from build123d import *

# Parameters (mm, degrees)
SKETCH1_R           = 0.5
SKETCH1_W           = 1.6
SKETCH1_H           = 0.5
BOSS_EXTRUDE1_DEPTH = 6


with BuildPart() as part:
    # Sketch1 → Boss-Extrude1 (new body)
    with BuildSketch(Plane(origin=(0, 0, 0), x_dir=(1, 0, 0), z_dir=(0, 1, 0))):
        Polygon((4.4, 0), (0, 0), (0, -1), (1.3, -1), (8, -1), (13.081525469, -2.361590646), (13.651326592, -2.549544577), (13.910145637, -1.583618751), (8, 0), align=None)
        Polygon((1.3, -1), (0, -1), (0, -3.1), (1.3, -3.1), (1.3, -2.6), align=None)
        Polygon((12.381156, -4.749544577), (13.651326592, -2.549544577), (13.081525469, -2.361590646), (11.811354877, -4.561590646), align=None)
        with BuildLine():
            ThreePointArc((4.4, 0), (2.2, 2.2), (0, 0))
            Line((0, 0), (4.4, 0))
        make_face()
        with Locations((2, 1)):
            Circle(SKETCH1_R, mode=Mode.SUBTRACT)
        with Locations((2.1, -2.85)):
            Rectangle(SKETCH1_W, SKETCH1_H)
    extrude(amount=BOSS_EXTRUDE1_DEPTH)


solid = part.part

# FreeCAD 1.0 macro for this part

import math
import FreeCAD as App
import Part
import Sketcher

V = App.Vector
Q = App.Units.Quantity

doc = App.newDocument("Part")
body = doc.addObject("PartDesign::Body", "Body")

sketch1 = doc.addObject("Sketcher::SketchObject", "Sketch")
body.addObject(sketch1)
sketch1.AttachmentSupport = (doc.XZ_Plane, [""])
sketch1.MapMode = "FlatFace"
sketch1.addGeometry(Part.LineSegment(V(8, 0, 0), V(4.4, 0, 0)), False)
sketch1.addGeometry(Part.ArcOfCircle(Part.Circle(V(2.2, 0, 0), V(0, 0, 1), 2.2), math.radians(180), math.radians(360)), False)
sketch1.addGeometry(Part.LineSegment(V(0, 0, 0), V(0, 3.1, 0)), False)
sketch1.addGeometry(Part.LineSegment(V(0, 3.1, 0), V(2.9, 3.1, 0)), False)
sketch1.addGeometry(Part.LineSegment(V(2.9, 3.1, 0), V(2.9, 2.6, 0)), False)
sketch1.addGeometry(Part.LineSegment(V(2.9, 2.6, 0), V(1.3, 2.6, 0)), False)
sketch1.addGeometry(Part.LineSegment(V(1.3, 2.6, 0), V(1.3, 1, 0)), False)
sketch1.addGeometry(Part.LineSegment(V(1.3, 1, 0), V(8, 1, 0)), False)
sketch1.addGeometry(Part.LineSegment(V(8, 1, 0), V(13.1, 2.4, 0)), False)
sketch1.addGeometry(Part.LineSegment(V(13.1, 2.4, 0), V(11.8, 4.6, 0)), False)
sketch1.addGeometry(Part.LineSegment(V(11.8, 4.6, 0), V(12.4, 4.7, 0)), False)
sketch1.addGeometry(Part.LineSegment(V(12.4, 4.7, 0), V(13.7, 2.5, 0)), False)
sketch1.addGeometry(Part.LineSegment(V(13.7, 2.5, 0), V(13.9, 1.6, 0)), False)
sketch1.addGeometry(Part.LineSegment(V(13.9, 1.6, 0), V(8, 0, 0)), False)
sketch1.addGeometry(Part.Circle(V(2, -1, 0), V(0, 0, 1), 0.5), False)
sketch1.addConstraint(Sketcher.Constraint("Coincident", 0, 2, 1, 2))
sketch1.addConstraint(Sketcher.Constraint("Tangent", 1, 1, 2, 1))
sketch1.addConstraint(Sketcher.Constraint("Coincident", 2, 2, 3, 1))
sketch1.addConstraint(Sketcher.Constraint("Coincident", 3, 2, 4, 1))
sketch1.addConstraint(Sketcher.Constraint("Coincident", 4, 2, 5, 1))
sketch1.addConstraint(Sketcher.Constraint("Coincident", 5, 2, 6, 1))
sketch1.addConstraint(Sketcher.Constraint("Coincident", 6, 2, 7, 1))
sketch1.addConstraint(Sketcher.Constraint("Coincident", 7, 2, 8, 1))
sketch1.addConstraint(Sketcher.Constraint("Coincident", 8, 2, 9, 1))
sketch1.addConstraint(Sketcher.Constraint("Coincident", 9, 2, 10, 1))
sketch1.addConstraint(Sketcher.Constraint("Coincident", 10, 2, 11, 1))
sketch1.addConstraint(Sketcher.Constraint("Coincident", 11, 2, 12, 1))
sketch1.addConstraint(Sketcher.Constraint("Coincident", 12, 2, 13, 1))
sketch1.addConstraint(Sketcher.Constraint("Coincident", 13, 2, 0, 1))
sketch1.addConstraint(Sketcher.Constraint("Horizontal", 0))
sketch1.addConstraint(Sketcher.Constraint("Vertical", 2))
sketch1.addConstraint(Sketcher.Constraint("Horizontal", 3))
sketch1.addConstraint(Sketcher.Constraint("Vertical", 4))
sketch1.addConstraint(Sketcher.Constraint("Horizontal", 5))
sketch1.addConstraint(Sketcher.Constraint("Vertical", 6))
sketch1.addConstraint(Sketcher.Constraint("Horizontal", 7))
sketch1.addConstraint(Sketcher.Constraint("Coincident", 1, 1, -1, 1))
sketch1.addConstraint(Sketcher.Constraint("PointOnObject", 0, 2, -1))
sketch1.addConstraint(Sketcher.Constraint("Parallel", 9, 11))
sketch1.addConstraint(Sketcher.Constraint("Perpendicular", 8, 12))
sketch1.addConstraint(Sketcher.Constraint("Perpendicular", 12, 13))
sketch1.addConstraint(Sketcher.Constraint("Vertical", 7, 2, 13, 2))
sketch1.addConstraint(Sketcher.Constraint("Equal", 5, 6))
sketch1.addConstraint(Sketcher.Constraint("Equal", 9, 11))
sketch1.addConstraint(Sketcher.Constraint("Diameter", 14, Q("1 mm")))
sketch1.addConstraint(Sketcher.Constraint("Radius", 1, Q("2.2 mm")))
sketch1.addConstraint(Sketcher.Constraint("Angle", 8, Q("15 deg")))
sketch1.addConstraint(Sketcher.Constraint("Angle", 9, Q("120 deg")))
sketch1.addConstraint(Sketcher.Constraint("Distance", 12, Q("1 mm")))
sketch1.addConstraint(Sketcher.Constraint("DistanceX", 0, 2, 0, 1, Q("3.6 mm")))
sketch1.addConstraint(Sketcher.Constraint("DistanceX", 3, 1, 3, 2, Q("2.9 mm")))
sketch1.addConstraint(Sketcher.Constraint("DistanceX", 5, 2, 5, 1, Q("1.6 mm")))
sketch1.addConstraint(Sketcher.Constraint("DistanceY", 2, 1, 2, 2, Q("3.1 mm")))
sketch1.addConstraint(Sketcher.Constraint("DistanceY", 4, 2, 4, 1, Q("0.5 mm")))
sketch1.addConstraint(Sketcher.Constraint("DistanceX", -1, 1, 14, 3, Q("2 mm")))
sketch1.addConstraint(Sketcher.Constraint("DistanceY", 14, 3, -1, 1, Q("1 mm")))
sketch1.addConstraint(Sketcher.Constraint("Distance", 10, Q("0.6 mm")))
sketch1.addConstraint(Sketcher.Constraint("DistanceY", 8, 2, 9, 2, Q("2.2 mm")))
sketch1.addConstraint(Sketcher.Constraint("DistanceY", -1, 1, 8, 2, Q("2.361591 mm")))
pad1 = doc.addObject("PartDesign::Pad", "Pad")
body.addObject(pad1)
pad1.Profile = sketch1
pad1.Length = 6
pad1.Reversed = True

doc.recompute()
